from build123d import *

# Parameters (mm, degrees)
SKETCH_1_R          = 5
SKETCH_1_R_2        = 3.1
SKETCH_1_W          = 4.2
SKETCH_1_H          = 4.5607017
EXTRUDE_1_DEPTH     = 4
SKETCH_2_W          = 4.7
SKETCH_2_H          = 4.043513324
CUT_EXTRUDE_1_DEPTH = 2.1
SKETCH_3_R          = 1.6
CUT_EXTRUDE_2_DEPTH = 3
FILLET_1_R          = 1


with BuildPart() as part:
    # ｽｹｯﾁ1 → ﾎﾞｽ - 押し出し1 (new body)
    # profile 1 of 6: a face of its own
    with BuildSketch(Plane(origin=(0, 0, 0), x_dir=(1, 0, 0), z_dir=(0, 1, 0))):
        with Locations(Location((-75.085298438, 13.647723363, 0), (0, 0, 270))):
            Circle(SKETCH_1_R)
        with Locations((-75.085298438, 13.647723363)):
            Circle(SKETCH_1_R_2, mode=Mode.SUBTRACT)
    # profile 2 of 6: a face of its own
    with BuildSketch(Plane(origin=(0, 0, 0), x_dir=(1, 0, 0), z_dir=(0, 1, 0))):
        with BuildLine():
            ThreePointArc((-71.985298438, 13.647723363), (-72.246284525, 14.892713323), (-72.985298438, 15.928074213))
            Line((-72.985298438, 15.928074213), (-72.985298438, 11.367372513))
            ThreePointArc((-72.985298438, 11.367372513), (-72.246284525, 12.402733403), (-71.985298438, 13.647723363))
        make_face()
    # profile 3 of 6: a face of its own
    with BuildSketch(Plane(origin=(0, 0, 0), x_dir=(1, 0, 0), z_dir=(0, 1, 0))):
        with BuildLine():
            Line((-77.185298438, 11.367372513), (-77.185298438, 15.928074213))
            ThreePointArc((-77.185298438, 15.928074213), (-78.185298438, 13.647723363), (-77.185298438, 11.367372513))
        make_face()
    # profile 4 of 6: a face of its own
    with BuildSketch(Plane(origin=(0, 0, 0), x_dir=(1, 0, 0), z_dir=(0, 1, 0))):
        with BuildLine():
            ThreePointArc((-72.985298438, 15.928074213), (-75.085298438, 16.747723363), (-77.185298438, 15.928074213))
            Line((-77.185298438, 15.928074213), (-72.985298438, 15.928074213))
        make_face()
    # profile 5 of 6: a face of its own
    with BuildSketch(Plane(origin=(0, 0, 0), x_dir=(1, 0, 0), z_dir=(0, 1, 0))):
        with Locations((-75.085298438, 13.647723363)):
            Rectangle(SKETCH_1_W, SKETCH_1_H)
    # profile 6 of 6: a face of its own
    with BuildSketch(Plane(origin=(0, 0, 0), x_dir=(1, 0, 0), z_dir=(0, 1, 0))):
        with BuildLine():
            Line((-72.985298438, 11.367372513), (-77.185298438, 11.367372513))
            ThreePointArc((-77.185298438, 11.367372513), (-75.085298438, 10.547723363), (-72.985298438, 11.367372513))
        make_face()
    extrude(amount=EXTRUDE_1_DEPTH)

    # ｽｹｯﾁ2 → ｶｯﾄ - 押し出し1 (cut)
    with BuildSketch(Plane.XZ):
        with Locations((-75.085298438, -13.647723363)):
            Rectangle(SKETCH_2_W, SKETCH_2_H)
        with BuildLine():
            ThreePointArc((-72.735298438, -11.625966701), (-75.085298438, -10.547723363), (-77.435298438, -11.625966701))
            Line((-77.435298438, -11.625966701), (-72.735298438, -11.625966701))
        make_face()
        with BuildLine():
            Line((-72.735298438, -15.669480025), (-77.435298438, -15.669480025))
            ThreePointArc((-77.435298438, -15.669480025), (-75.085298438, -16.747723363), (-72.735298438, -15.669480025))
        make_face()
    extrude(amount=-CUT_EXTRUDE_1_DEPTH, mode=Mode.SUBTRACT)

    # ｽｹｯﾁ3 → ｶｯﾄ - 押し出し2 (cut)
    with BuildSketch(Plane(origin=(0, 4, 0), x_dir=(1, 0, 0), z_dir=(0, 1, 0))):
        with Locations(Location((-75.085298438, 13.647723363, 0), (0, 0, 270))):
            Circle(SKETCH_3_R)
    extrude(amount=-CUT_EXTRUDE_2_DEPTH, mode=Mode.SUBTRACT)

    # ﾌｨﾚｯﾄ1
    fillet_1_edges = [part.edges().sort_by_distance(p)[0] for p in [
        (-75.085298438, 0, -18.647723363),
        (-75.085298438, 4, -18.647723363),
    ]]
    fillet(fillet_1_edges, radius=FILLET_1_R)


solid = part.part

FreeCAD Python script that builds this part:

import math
import FreeCAD as App
import Part
import Sketcher
from FreeCAD import Vector
Q = App.Units.Quantity


def edges_at(feature, points):
    """Names of the edges that pass closest to the given points."""
    edges = feature.Shape.Edges
    near = lambda p: min(range(len(edges)), key=lambda i: edges[i].distToShape(Part.Vertex(*p))[0])
    return sorted({f"Edge{near(p) + 1}" for p in points})

doc = App.newDocument("Part")
body = doc.addObject("PartDesign::Body", "Body")

# Sketch on XZ plane
sketch1 = body.newObject("Sketcher::SketchObject", "Sketch")
sketch1.AttachmentSupport = (doc.getObject("XZ_Plane"), [""])
sketch1.MapMode = "FlatFace"
sketch1.addGeometry(Part.Circle(Vector(-75, -14, 0), Vector(0, 0, 1), 5), False)
sketch1.addConstraint(Sketcher.Constraint("Diameter", 0, Q("10 mm")))
sketch1.addConstraint(Sketcher.Constraint("DistanceX", 0, 3, -1, 1, Q("75.085298 mm")))
sketch1.addConstraint(Sketcher.Constraint("DistanceY", 0, 3, -1, 1, Q("13.647723 mm")))
pad1 = body.newObject("PartDesign::Pad", "Pad")
pad1.Profile = sketch1
pad1.Length = 4
pad1.Reversed = True

# Sketch on XZ plane
sketch2 = body.newObject("Sketcher::SketchObject", "Sketch001")
sketch2.AttachmentSupport = (doc.getObject("XZ_Plane"), [""])
sketch2.MapMode = "FlatFace"
sketch2.addGeometry(Part.LineSegment(Vector(-77.4, -11.6, 0), Vector(-77.4, -15.7, 0)), False)
sketch2.addGeometry(Part.ArcOfCircle(Part.Circle(Vector(-75.1, -13.6, 0), Vector(0, 0, 1), 3.1), math.radians(-139), math.radians(-41)), False)
sketch2.addGeometry(Part.LineSegment(Vector(-72.7, -15.7, 0), Vector(-72.7, -11.6, 0)), False)
sketch2.addGeometry(Part.ArcOfCircle(Part.Circle(Vector(-75.1, -13.6, 0), Vector(0, 0, 1), 3.1), math.radians(41), math.radians(139)), False)
sketch2.addConstraint(Sketcher.Constraint("Coincident", 0, 2, 1, 1))
sketch2.addConstraint(Sketcher.Constraint("Coincident", 1, 2, 2, 1))
sketch2.addConstraint(Sketcher.Constraint("Coincident", 2, 2, 3, 1))
sketch2.addConstraint(Sketcher.Constraint("Coincident", 3, 2, 0, 1))
sketch2.addConstraint(Sketcher.Constraint("Vertical", 0))
sketch2.addConstraint(Sketcher.Constraint("Vertical", 2))
sketch2.addConstraint(Sketcher.Constraint("Coincident", 3, 3, 1, 3))
sketch2.addConstraint(Sketcher.Constraint("Equal", 1, 3))
sketch2.addConstraint(Sketcher.Constraint("Horizontal", 0, 2, 1, 2))
sketch2.addConstraint(Sketcher.Constraint("Radius", 1, Q("3.1 mm")))
sketch2.addConstraint(Sketcher.Constraint("DistanceX", 0, 2, 1, 2, Q("4.7 mm")))
sketch2.addConstraint(Sketcher.Constraint("DistanceX", 1, 3, -1, 1, Q("75.085298 mm")))
sketch2.addConstraint(Sketcher.Constraint("DistanceY", 0, 2, -1, 1, Q("15.66948 mm")))
pocket1 = body.newObject("PartDesign::Pocket", "Pocket")
pocket1.Profile = sketch2
pocket1.Length = 2.1

# Sketch on XZ plane
sketch3 = body.newObject("Sketcher::SketchObject", "Sketch002")
sketch3.AttachmentSupport = (doc.getObject("XZ_Plane"), [""])
sketch3.MapMode = "FlatFace"
sketch3.AttachmentOffset = App.Placement(Vector(0, 0, -4), App.Rotation())
sketch3.addGeometry(Part.Circle(Vector(-75.1, -13.6, 0), Vector(0, 0, 1), 1.6), False)
sketch3.addConstraint(Sketcher.Constraint("Diameter", 0, Q("3.2 mm")))
sketch3.addConstraint(Sketcher.Constraint("DistanceX", 0, 3, -1, 1, Q("75.085298 mm")))
sketch3.addConstraint(Sketcher.Constraint("DistanceY", 0, 3, -1, 1, Q("13.647723 mm")))
pocket2 = body.newObject("PartDesign::Pocket", "Pocket001")
pocket2.Profile = sketch3
pocket2.Length = 3
pocket2.Reversed = True
doc.recompute()

fillet = body.newObject("PartDesign::Fillet", "Fillet")
fillet.Base = (pocket2, edges_at(pocket2, [(-75.085, 0, -18.648), (-75.085, 4, -18.648)]))
fillet.Radius = 1

doc.recompute()
